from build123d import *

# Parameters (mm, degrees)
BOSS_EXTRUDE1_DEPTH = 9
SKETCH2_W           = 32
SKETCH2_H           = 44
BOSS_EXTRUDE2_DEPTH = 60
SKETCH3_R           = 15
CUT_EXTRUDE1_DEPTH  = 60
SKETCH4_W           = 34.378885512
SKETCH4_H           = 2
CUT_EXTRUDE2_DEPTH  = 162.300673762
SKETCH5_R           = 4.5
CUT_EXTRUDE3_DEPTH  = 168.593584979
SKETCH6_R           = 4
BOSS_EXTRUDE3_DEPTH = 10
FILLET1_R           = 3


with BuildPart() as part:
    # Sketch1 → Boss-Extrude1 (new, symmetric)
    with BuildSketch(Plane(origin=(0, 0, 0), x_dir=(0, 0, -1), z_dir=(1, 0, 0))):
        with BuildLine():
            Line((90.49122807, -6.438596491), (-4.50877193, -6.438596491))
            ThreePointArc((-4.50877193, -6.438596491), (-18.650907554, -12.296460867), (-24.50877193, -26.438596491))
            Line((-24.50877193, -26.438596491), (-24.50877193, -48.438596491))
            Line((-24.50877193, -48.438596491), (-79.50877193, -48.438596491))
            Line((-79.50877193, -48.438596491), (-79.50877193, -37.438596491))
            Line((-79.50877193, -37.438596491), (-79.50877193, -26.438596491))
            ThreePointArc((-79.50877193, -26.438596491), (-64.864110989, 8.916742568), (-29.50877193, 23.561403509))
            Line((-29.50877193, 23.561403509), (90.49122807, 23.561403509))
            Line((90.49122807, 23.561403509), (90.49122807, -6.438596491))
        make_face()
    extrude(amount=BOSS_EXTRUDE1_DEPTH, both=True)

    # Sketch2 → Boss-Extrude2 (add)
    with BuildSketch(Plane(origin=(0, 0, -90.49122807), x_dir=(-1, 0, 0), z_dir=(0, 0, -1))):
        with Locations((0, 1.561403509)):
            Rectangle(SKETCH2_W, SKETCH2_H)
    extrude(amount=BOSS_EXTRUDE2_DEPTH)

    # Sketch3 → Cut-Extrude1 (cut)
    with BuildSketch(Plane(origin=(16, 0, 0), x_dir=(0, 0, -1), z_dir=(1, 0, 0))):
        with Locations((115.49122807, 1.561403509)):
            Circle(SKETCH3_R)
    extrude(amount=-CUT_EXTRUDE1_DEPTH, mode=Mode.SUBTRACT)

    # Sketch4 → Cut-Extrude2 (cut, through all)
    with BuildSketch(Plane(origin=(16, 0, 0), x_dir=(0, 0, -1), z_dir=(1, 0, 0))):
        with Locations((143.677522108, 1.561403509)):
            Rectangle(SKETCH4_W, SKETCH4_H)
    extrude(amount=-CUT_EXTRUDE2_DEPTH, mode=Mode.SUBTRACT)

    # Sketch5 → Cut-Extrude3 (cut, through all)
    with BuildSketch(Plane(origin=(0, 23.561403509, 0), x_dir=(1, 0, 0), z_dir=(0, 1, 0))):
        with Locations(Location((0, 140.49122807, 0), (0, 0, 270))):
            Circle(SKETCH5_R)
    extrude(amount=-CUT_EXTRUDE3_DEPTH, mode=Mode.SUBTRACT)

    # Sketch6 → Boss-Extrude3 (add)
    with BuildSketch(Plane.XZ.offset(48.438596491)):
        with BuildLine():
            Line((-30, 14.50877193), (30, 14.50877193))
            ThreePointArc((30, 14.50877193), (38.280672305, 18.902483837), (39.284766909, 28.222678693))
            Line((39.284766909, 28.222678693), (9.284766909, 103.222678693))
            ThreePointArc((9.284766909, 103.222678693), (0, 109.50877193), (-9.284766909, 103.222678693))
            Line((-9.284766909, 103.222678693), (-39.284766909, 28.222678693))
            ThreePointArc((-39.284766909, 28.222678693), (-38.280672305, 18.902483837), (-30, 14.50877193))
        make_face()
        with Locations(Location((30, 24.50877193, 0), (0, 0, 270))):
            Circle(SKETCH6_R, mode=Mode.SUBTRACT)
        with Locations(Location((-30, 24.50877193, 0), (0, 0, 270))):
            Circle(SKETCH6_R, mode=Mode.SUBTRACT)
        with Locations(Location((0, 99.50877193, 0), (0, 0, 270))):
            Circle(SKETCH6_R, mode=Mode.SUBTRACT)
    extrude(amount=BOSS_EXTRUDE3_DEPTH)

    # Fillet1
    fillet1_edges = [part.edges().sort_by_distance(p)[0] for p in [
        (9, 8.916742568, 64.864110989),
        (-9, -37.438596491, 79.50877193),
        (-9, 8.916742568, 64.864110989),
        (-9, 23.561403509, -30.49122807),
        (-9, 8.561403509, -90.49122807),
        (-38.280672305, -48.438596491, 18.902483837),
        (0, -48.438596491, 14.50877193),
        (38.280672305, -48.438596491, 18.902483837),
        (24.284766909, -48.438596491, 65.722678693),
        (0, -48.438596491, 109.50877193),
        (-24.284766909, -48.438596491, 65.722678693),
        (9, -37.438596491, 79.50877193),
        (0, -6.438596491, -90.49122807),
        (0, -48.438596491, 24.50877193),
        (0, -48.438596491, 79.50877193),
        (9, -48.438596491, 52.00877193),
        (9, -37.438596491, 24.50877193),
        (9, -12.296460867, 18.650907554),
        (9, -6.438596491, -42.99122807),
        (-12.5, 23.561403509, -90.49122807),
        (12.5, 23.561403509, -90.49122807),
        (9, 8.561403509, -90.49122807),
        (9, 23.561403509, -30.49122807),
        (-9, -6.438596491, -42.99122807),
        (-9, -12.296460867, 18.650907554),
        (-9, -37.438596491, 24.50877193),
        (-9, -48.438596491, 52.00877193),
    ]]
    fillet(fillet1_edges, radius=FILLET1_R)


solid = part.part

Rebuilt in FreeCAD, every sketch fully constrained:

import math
import FreeCAD as App
import Part
import Sketcher

V = App.Vector


def edges_at(feature, points):
    """Names of the edges that pass closest to the given points."""
    edges = feature.Shape.Edges
    near = lambda p: min(range(len(edges)), key=lambda i: edges[i].distToShape(Part.Vertex(*p))[0])
    return sorted({f"Edge{near(p) + 1}" for p in points})

doc = App.newDocument("Part")
params = doc.addObject("Spreadsheet::Sheet", "Params")
for row, (alias, value) in enumerate([
    ("sketch1_radius", "50 mm"),
    ("sketch1_radius2", "20 mm"),
    ("sketch1_width", "22 mm"),
    ("sketch1_height", "95 mm"),
    ("sketch1_height2", "120 mm"),
    ("pad1_length", "18 mm"),
    ("sketch2_width", "32 mm"),
    ("sketch2_height", "44 mm"),
    ("pad2_length", "60 mm"),
    ("sketch3_diameter", "30 mm"),
    ("pocket1_length", "60 mm"),
    ("sketch4_width", "2 mm"),
    ("sketch5_diameter", "9 mm"),
    ("sketch6_diameter", "8 mm"),
    ("sketch6_radius", "10 mm"),
    ("sketch6_width", "60 mm"),
    ("pad3_length", "10 mm"),
    ("fillet_radius", "3 mm"),
], start=1):
    params.set(f"A{row}", alias)
    params.set(f"B{row}", "=" + value)
    params.setAlias(f"B{row}", alias)

body = doc.addObject("PartDesign::Body", "Body")

# Sketch on YZ plane
sketch1 = body.newObject("Sketcher::SketchObject", "Sketch")
sketch1.AttachmentSupport = (doc.getObject("YZ_Plane"), [""])
sketch1.MapMode = "FlatFace"
sketch1.addGeometry(Part.LineSegment(V(-6.438596, 4.508772, 0), V(-6.438596, -90.491228, 0)), False)
sketch1.addGeometry(Part.LineSegment(V(-6.438596, -90.491228, 0), V(23.561404, -90.491228, 0)), False)
sketch1.addGeometry(Part.LineSegment(V(23.561404, -90.491228, 0), V(23.561404, 29.508772, 0)), False)
sketch1.addGeometry(Part.ArcOfCircle(Part.Circle(V(-26.438596, 29.508772, 0), V(0, 0, 1), 50), math.radians(0), math.radians(90)), False)
sketch1.addGeometry(Part.LineSegment(V(-26.438596, 79.508772, 0), V(-48.438596, 79.508772, 0)), False)
sketch1.addGeometry(Part.LineSegment(V(-48.438596, 79.508772, 0), V(-48.438596, 24.508772, 0)), False)
sketch1.addGeometry(Part.LineSegment(V(-48.438596, 24.508772, 0), V(-26.438596, 24.508772, 0)), False)
sketch1.addGeometry(Part.ArcOfCircle(Part.Circle(V(-26.438596, 4.508772, 0), V(0, 0, 1), 20), math.radians(0), math.radians(90)), False)
sketch1.addConstraint(Sketcher.Constraint("Coincident", 0, 2, 1, 1))
sketch1.addConstraint(Sketcher.Constraint("Coincident", 1, 2, 2, 1))
sketch1.addConstraint(Sketcher.Constraint("Tangent", 2, 2, 3, 1))
sketch1.addConstraint(Sketcher.Constraint("Tangent", 3, 2, 4, 1))
sketch1.addConstraint(Sketcher.Constraint("Coincident", 4, 2, 5, 1))
sketch1.addConstraint(Sketcher.Constraint("Coincident", 5, 2, 6, 1))
sketch1.addConstraint(Sketcher.Constraint("Tangent", 6, 2, 7, 2))
sketch1.addConstraint(Sketcher.Constraint("Tangent", 7, 1, 0, 1))
sketch1.addConstraint(Sketcher.Constraint("Vertical", 0))
sketch1.addConstraint(Sketcher.Constraint("Horizontal", 1))
sketch1.addConstraint(Sketcher.Constraint("Vertical", 2))
sketch1.addConstraint(Sketcher.Constraint("Horizontal", 4))
sketch1.addConstraint(Sketcher.Constraint("Vertical", 5))
sketch1.addConstraint(Sketcher.Constraint("Horizontal", 6))
sketch1.addConstraint(Sketcher.Constraint("Vertical", 3, 3, 7, 3))
sketch1.addConstraint(Sketcher.Constraint("Radius", 3, 50.0))
sketch1.addConstraint(Sketcher.Constraint("Radius", 7, 20.0))
sketch1.addConstraint(Sketcher.Constraint("DistanceX", 4, 2, 4, 1, 22.0))
sketch1.addConstraint(Sketcher.Constraint("DistanceY", 0, 2, 0, 1, 95.0))
sketch1.addConstraint(Sketcher.Constraint("DistanceY", 2, 1, 2, 2, 120.0))
sketch1.addConstraint(Sketcher.Constraint("DistanceY", -1, 1, 3, 3, 29.508772))
sketch1.addConstraint(Sketcher.Constraint("DistanceX", 3, 3, -1, 1, 26.438596))
sketch1.setExpression("Constraints[15]", "Params.sketch1_radius")
sketch1.setExpression("Constraints[16]", "Params.sketch1_radius2")
sketch1.setExpression("Constraints[17]", "Params.sketch1_width")
sketch1.setExpression("Constraints[18]", "Params.sketch1_height")
sketch1.setExpression("Constraints[19]", "Params.sketch1_height2")
pad1 = body.newObject("PartDesign::Pad", "Pad")
pad1.Profile = sketch1
pad1.setExpression("Length", "Params.pad1_length")
pad1.Midplane = True

# Sketch on XY plane
sketch2 = body.newObject("Sketcher::SketchObject", "Sketch001")
sketch2.AttachmentSupport = (doc.getObject("XY_Plane"), [""])
sketch2.MapMode = "FlatFace"
sketch2.AttachmentOffset = App.Placement(V(0, 0, -90.491228), App.Rotation())
sketch2.addGeometry(Part.LineSegment(V(16, 23.561404, 0), V(16, -20.438596, 0)), False)
sketch2.addGeometry(Part.LineSegment(V(16, -20.438596, 0), V(-16, -20.438596, 0)), False)
sketch2.addGeometry(Part.LineSegment(V(-16, -20.438596, 0), V(-16, 23.561404, 0)), False)
sketch2.addGeometry(Part.LineSegment(V(-16, 23.561404, 0), V(16, 23.561404, 0)), False)
sketch2.addConstraint(Sketcher.Constraint("Coincident", 0, 2, 1, 1))
sketch2.addConstraint(Sketcher.Constraint("Coincident", 1, 2, 2, 1))
sketch2.addConstraint(Sketcher.Constraint("Coincident", 2, 2, 3, 1))
sketch2.addConstraint(Sketcher.Constraint("Coincident", 3, 2, 0, 1))
sketch2.addConstraint(Sketcher.Constraint("Vertical", 0))
sketch2.addConstraint(Sketcher.Constraint("Horizontal", 1))
sketch2.addConstraint(Sketcher.Constraint("Vertical", 2))
sketch2.addConstraint(Sketcher.Constraint("Horizontal", 3))
sketch2.addConstraint(Sketcher.Constraint("DistanceX", 1, 2, 1, 1, 32.0))
sketch2.addConstraint(Sketcher.Constraint("DistanceY", 0, 2, 0, 1, 44.0))
sketch2.addConstraint(Sketcher.Constraint("DistanceX", -1, 1, 0, 2, 16.0))
sketch2.addConstraint(Sketcher.Constraint("DistanceY", 0, 2, -1, 1, 20.438596))
sketch2.setExpression("Constraints[8]", "Params.sketch2_width")
sketch2.setExpression("Constraints[9]", "Params.sketch2_height")
pad2 = body.newObject("PartDesign::Pad", "Pad001")
pad2.Profile = sketch2
pad2.setExpression("Length", "Params.pad2_length")
pad2.Reversed = True

# Sketch on YZ plane
sketch3 = body.newObject("Sketcher::SketchObject", "Sketch002")
sketch3.AttachmentSupport = (doc.getObject("YZ_Plane"), [""])
sketch3.MapMode = "FlatFace"
sketch3.AttachmentOffset = App.Placement(V(0, 0, 16), App.Rotation())
sketch3.addGeometry(Part.Circle(V(1.561404, -115.491228, 0), V(0, 0, 1), 15), False)
sketch3.addConstraint(Sketcher.Constraint("Diameter", 0, 30.0))
sketch3.addConstraint(Sketcher.Constraint("DistanceY", 0, 3, -1, 1, 115.491228))
sketch3.addConstraint(Sketcher.Constraint("DistanceX", -1, 1, 0, 3, 1.561404))
sketch3.setExpression("Constraints[0]", "Params.sketch3_diameter")
pocket1 = body.newObject("PartDesign::Pocket", "Pocket")
pocket1.Profile = sketch3
pocket1.setExpression("Length", "Params.pocket1_length")

# Sketch on YZ plane
sketch4 = body.newObject("Sketcher::SketchObject", "Sketch003")
sketch4.AttachmentSupport = (doc.getObject("YZ_Plane"), [""])
sketch4.MapMode = "FlatFace"
sketch4.AttachmentOffset = App.Placement(V(0, 0, 16), App.Rotation())
sketch4.addGeometry(Part.LineSegment(V(2.561404, -126.488079, 0), V(0.561404, -126.488079, 0)), False)
sketch4.addGeometry(Part.LineSegment(V(0.561404, -126.488079, 0), V(0.561404, -160.866965, 0)), False)
sketch4.addGeometry(Part.LineSegment(V(0.561404, -160.866965, 0), V(2.561404, -160.866965, 0)), False)
sketch4.addGeometry(Part.LineSegment(V(2.561404, -160.866965, 0), V(2.561404, -126.488079, 0)), False)
sketch4.addConstraint(Sketcher.Constraint("Coincident", 0, 2, 1, 1))
sketch4.addConstraint(Sketcher.Constraint("Coincident", 1, 2, 2, 1))
sketch4.addConstraint(Sketcher.Constraint("Coincident", 2, 2, 3, 1))
sketch4.addConstraint(Sketcher.Constraint("Coincident", 3, 2, 0, 1))
sketch4.addConstraint(Sketcher.Constraint("Horizontal", 0))
sketch4.addConstraint(Sketcher.Constraint("Vertical", 1))
sketch4.addConstraint(Sketcher.Constraint("Horizontal", 2))
sketch4.addConstraint(Sketcher.Constraint("Vertical", 3))
sketch4.addConstraint(Sketcher.Constraint("DistanceX", 0, 2, 0, 1, 2.0))
sketch4.addConstraint(Sketcher.Constraint("DistanceY", 1, 2, 1, 1, 34.378886))
sketch4.addConstraint(Sketcher.Constraint("DistanceY", 0, 2, -1, 1, 126.488079))
sketch4.addConstraint(Sketcher.Constraint("DistanceX", -1, 1, 0, 2, 0.561404))
sketch4.setExpression("Constraints[8]", "Params.sketch4_width")
pocket2 = body.newObject("PartDesign::Pocket", "Pocket001")
pocket2.Profile = sketch4
pocket2.Type = "ThroughAll"

# Sketch on XZ plane
sketch5 = body.newObject("Sketcher::SketchObject", "Sketch004")
sketch5.AttachmentSupport = (doc.getObject("XZ_Plane"), [""])
sketch5.MapMode = "FlatFace"
sketch5.AttachmentOffset = App.Placement(V(0, 0, -23.561404), App.Rotation())
sketch5.addGeometry(Part.Circle(V(0, -140.491228, 0), V(0, 0, 1), 4.5), False)
sketch5.addConstraint(Sketcher.Constraint("PointOnObject", 0, 3, -2))
sketch5.addConstraint(Sketcher.Constraint("Diameter", 0, 9.0))
sketch5.addConstraint(Sketcher.Constraint("DistanceY", 0, 3, -1, 1, 140.491228))
sketch5.setExpression("Constraints[1]", "Params.sketch5_diameter")
pocket3 = body.newObject("PartDesign::Pocket", "Pocket002")
pocket3.Profile = sketch5
pocket3.Type = "ThroughAll"
pocket3.Reversed = True

# Sketch on XZ plane
sketch6 = body.newObject("Sketcher::SketchObject", "Sketch005")
sketch6.AttachmentSupport = (doc.getObject("XZ_Plane"), [""])
sketch6.MapMode = "FlatFace"
sketch6.AttachmentOffset = App.Placement(V(0, 0, 48.438596), App.Rotation())
sketch6.addGeometry(Part.LineSegment(V(-30, 14.508772, 0), V(30, 14.508772, 0)), False)
sketch6.addGeometry(Part.ArcOfCircle(Part.Circle(V(30, 24.508772, 0), V(0, 0, 1), 10), math.radians(-90), math.radians(21.801409)), False)
sketch6.addGeometry(Part.LineSegment(V(39.284767, 28.222679, 0), V(9.284767, 103.222679, 0)), False)
sketch6.addGeometry(Part.ArcOfCircle(Part.Circle(V(0, 99.508772, 0), V(0, 0, 1), 10), math.radians(21.801409), math.radians(158.198591)), False)
sketch6.addGeometry(Part.LineSegment(V(-9.284767, 103.222679, 0), V(-39.284767, 28.222679, 0)), False)
sketch6.addGeometry(Part.ArcOfCircle(Part.Circle(V(-30, 24.508772, 0), V(0, 0, 1), 10), math.radians(158.198591), math.radians(270)), False)
sketch6.addGeometry(Part.Circle(V(-30, 24.508772, 0), V(0, 0, 1), 4), False)
sketch6.addGeometry(Part.Circle(V(30, 24.508772, 0), V(0, 0, 1), 4), False)
sketch6.addGeometry(Part.Circle(V(0, 99.508772, 0), V(0, 0, 1), 4), False)
sketch6.addConstraint(Sketcher.Constraint("Tangent", 0, 2, 1, 1))
sketch6.addConstraint(Sketcher.Constraint("Tangent", 1, 2, 2, 1))
sketch6.addConstraint(Sketcher.Constraint("Tangent", 2, 2, 3, 1))
sketch6.addConstraint(Sketcher.Constraint("Tangent", 3, 2, 4, 1))
sketch6.addConstraint(Sketcher.Constraint("Tangent", 4, 2, 5, 1))
sketch6.addConstraint(Sketcher.Constraint("Tangent", 5, 2, 0, 1))
sketch6.addConstraint(Sketcher.Constraint("Horizontal", 0))
sketch6.addConstraint(Sketcher.Constraint("Coincident", 6, 3, 5, 3))
sketch6.addConstraint(Sketcher.Constraint("Coincident", 7, 3, 1, 3))
sketch6.addConstraint(Sketcher.Constraint("Coincident", 8, 3, 3, 3))
sketch6.addConstraint(Sketcher.Constraint("Equal", 1, 3))
sketch6.addConstraint(Sketcher.Constraint("Equal", 3, 5))
sketch6.addConstraint(Sketcher.Constraint("Equal", 6, 7))
sketch6.addConstraint(Sketcher.Constraint("Equal", 7, 8))
sketch6.addConstraint(Sketcher.Constraint("Symmetric", 2, 2, 3, 2, -2))
sketch6.addConstraint(Sketcher.Constraint("Diameter", 6, 8.0))
sketch6.addConstraint(Sketcher.Constraint("Radius", 1, 10.0))
sketch6.addConstraint(Sketcher.Constraint("DistanceX", 0, 1, 0, 2, 60.0))
sketch6.addConstraint(Sketcher.Constraint("DistanceY", 1, 3, 3, 3, 75.0))
sketch6.addConstraint(Sketcher.Constraint("DistanceY", -1, 1, 1, 3, 24.508772))
sketch6.setExpression("Constraints[15]", "Params.sketch6_diameter")
sketch6.setExpression("Constraints[16]", "Params.sketch6_radius")
sketch6.setExpression("Constraints[17]", "Params.sketch6_width")
pad3 = body.newObject("PartDesign::Pad", "Pad002")
pad3.Profile = sketch6
pad3.setExpression("Length", "Params.pad3_length")
doc.recompute()

fillet = body.newObject("PartDesign::Fillet", "Fillet")
fillet.Base = (pad3, edges_at(pad3, [
    (9, 8.917, 64.864),
    (-9, -37.439, 79.509),
    (-9, 8.917, 64.864),
    (-9, 23.561, -30.491),
    (-9, 8.561, -90.491),
    (-38.281, -48.439, 18.902),
    (0, -48.439, 14.509),
    (38.281, -48.439, 18.902),
    (24.285, -48.439, 65.723),
    (0, -48.439, 109.509),
    (-24.285, -48.439, 65.723),
    (9, -37.439, 79.509),
    (0, -6.439, -90.491),
    (0, -48.439, 24.509),
    (0, -48.439, 79.509),
    (9, -48.439, 52.009),
    (9, -37.439, 24.509),
    (9, -12.296, 18.651),
    (9, -6.439, -42.991),
    (-12.5, 23.561, -90.491),
    (12.5, 23.561, -90.491),
    (9, 8.561, -90.491),
    (9, 23.561, -30.491),
    (-9, -6.439, -42.991),
    (-9, -12.296, 18.651),
    (-9, -37.439, 24.509),
    (-9, -48.439, 52.009),
]))
fillet.setExpression("Radius", "Params.fillet_radius")

doc.recompute()
